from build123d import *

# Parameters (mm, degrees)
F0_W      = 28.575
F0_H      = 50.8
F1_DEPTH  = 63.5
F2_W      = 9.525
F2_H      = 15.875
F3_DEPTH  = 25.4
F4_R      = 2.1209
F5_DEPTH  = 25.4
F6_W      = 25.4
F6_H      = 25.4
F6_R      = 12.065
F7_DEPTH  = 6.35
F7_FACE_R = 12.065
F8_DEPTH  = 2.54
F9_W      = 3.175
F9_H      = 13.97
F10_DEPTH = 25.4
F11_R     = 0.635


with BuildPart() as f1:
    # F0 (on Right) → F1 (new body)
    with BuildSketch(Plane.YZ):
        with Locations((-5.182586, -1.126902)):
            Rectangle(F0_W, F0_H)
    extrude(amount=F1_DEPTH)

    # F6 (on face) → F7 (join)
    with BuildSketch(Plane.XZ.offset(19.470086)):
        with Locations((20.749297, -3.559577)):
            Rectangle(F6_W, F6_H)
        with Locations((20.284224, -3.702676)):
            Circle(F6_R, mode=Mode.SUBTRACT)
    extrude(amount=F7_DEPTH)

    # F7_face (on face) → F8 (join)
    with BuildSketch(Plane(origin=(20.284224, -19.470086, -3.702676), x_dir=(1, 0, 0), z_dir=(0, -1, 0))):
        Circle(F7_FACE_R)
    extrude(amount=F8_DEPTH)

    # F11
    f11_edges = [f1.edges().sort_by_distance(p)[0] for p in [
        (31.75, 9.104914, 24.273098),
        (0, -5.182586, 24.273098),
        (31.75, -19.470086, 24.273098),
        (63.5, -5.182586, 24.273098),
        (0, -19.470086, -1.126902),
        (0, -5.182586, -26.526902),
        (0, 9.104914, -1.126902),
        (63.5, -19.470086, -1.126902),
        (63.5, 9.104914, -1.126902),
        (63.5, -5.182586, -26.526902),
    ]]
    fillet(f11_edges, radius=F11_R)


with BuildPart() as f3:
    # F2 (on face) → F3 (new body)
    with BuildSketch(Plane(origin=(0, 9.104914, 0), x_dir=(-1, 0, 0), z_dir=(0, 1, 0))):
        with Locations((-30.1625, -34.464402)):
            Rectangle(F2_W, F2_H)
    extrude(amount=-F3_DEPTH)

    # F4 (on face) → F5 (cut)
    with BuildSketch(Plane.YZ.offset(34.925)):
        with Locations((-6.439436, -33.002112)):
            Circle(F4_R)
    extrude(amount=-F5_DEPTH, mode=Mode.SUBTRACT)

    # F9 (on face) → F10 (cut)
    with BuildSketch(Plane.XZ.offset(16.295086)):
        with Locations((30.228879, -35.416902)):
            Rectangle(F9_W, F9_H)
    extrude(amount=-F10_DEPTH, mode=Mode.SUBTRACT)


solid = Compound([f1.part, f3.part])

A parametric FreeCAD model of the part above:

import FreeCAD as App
import Part
import Sketcher
Q = App.Units.Quantity


def edges_at(feature, points):
    """Names of the edges that pass closest to the given points."""
    edges = feature.Shape.Edges
    near = lambda p: min(range(len(edges)), key=lambda i: edges[i].distToShape(Part.Vertex(*p))[0])
    return sorted({f"Edge{near(p) + 1}" for p in points})

doc = App.newDocument("Part")
body = doc.addObject("PartDesign::Body", "Body")

# Sketch on YZ plane
sketch1 = body.newObject("Sketcher::SketchObject", "Sketch")
sketch1.AttachmentSupport = (doc.getObject("YZ_Plane"), [""])
sketch1.MapMode = "FlatFace"
sketch1.addGeometry([
    Part.LineSegment(App.Vector(-19, 24, 0), App.Vector(-19, -27, 0)),
    Part.LineSegment(App.Vector(-19, -27, 0), App.Vector(9, -27, 0)),
    Part.LineSegment(App.Vector(9, -27, 0), App.Vector(9, 24, 0)),
    Part.LineSegment(App.Vector(9, 24, 0), App.Vector(-19, 24, 0)),
], False)
sketch1.addConstraint([
    Sketcher.Constraint("Coincident", 0, 2, 1, 1),
    Sketcher.Constraint("Coincident", 1, 2, 2, 1),
    Sketcher.Constraint("Coincident", 2, 2, 3, 1),
    Sketcher.Constraint("Coincident", 3, 2, 0, 1),
    Sketcher.Constraint("Vertical", 0),
    Sketcher.Constraint("Horizontal", 1),
    Sketcher.Constraint("Vertical", 2),
    Sketcher.Constraint("Horizontal", 3),
    Sketcher.Constraint("DistanceY", 0, 2, 0, 1, Q("2 in")),
    Sketcher.Constraint("DistanceX", 1, 1, 1, 2, Q("1.125 in")),
    Sketcher.Constraint("DistanceY", 0, 2, -1, 1, 26.526902),
    Sketcher.Constraint("DistanceX", 0, 2, -1, 1, 19.470086),
])
pad1 = body.newObject("PartDesign::Pad", "Pad")
pad1.Profile = sketch1
pad1.Length = Q("2.5 in")

# Sketch on XZ plane
sketch2 = body.newObject("Sketcher::SketchObject", "Sketch001")
sketch2.AttachmentSupport = (doc.getObject("XZ_Plane"), [""])
sketch2.MapMode = "FlatFace"
sketch2.AttachmentOffset = App.Placement(App.Vector(0, 0, 19.470086), App.Rotation())
sketch2.addGeometry([
    Part.LineSegment(App.Vector(8, 9, 0), App.Vector(8, -16, 0)),  # 0
    Part.LineSegment(App.Vector(8, -16, 0), App.Vector(33, -16, 0)),  # 1
    Part.LineSegment(App.Vector(33, -16, 0), App.Vector(33, 9, 0)),  # 2
    Part.LineSegment(App.Vector(33, 9, 0), App.Vector(8, 9, 0)),  # 3
    Part.Circle(App.Vector(20, -4, 0), App.Vector(0, 0, 1), 12),  # 4
], False)
sketch2.addConstraint([
    Sketcher.Constraint("Coincident", 0, 2, 1, 1),
    Sketcher.Constraint("Coincident", 1, 2, 2, 1),
    Sketcher.Constraint("Coincident", 2, 2, 3, 1),
    Sketcher.Constraint("Coincident", 3, 2, 0, 1),
    Sketcher.Constraint("Vertical", 0),
    Sketcher.Constraint("Horizontal", 1),
    Sketcher.Constraint("Vertical", 2),
    Sketcher.Constraint("Horizontal", 3),
    Sketcher.Constraint("Equal", 3, 0),
    Sketcher.Constraint("Diameter", 4, Q("0.95 in")),
    Sketcher.Constraint("DistanceX", 1, 1, 1, 2, Q("1 in")),
    Sketcher.Constraint("DistanceY", 0, 2, 4, 3, 12.556901),
    Sketcher.Constraint("DistanceX", -1, 1, 4, 3, 20.284224),
    Sketcher.Constraint("DistanceY", 4, 3, -1, 1, 3.702676),
    Sketcher.Constraint("DistanceX", -1, 1, 0, 2, 8.049297),
])
pad2 = body.newObject("PartDesign::Pad", "Pad001")
pad2.Profile = sketch2
pad2.Length = Q("0.25 in")

# Sketch on XZ plane
sketch3 = body.newObject("Sketcher::SketchObject", "Sketch002")
sketch3.AttachmentSupport = (doc.getObject("XZ_Plane"), [""])
sketch3.MapMode = "FlatFace"
sketch3.AttachmentOffset = App.Placement(App.Vector(0, 0, 19.470086), App.Rotation())
sketch3.addGeometry(Part.Circle(App.Vector(20, -4, 0), App.Vector(0, 0, 1), 12), False)
sketch3.addConstraint([
    Sketcher.Constraint("Diameter", 0, Q("0.95 in")),
    Sketcher.Constraint("DistanceX", -1, 1, 0, 3, 20.284224),
    Sketcher.Constraint("DistanceY", 0, 3, -1, 1, 3.702676),
])
pad3 = body.newObject("PartDesign::Pad", "Pad002")
pad3.Profile = sketch3
pad3.Length = Q("0.1 in")
doc.recompute()

fillet = body.newObject("PartDesign::Fillet", "Fillet")
fillet.Base = (pad3, edges_at(pad3, [
    (31.75, 9.105, 24.273),
    (0, -5.183, 24.273),
    (31.75, -19.47, 24.273),
    (63.5, -5.183, 24.273),
    (0, -19.47, -1.127),
    (0, -5.183, -26.527),
    (0, 9.105, -1.127),
    (63.5, -19.47, -1.127),
    (63.5, 9.105, -1.127),
    (63.5, -5.183, -26.527),
]))
fillet.Radius = Q("0.025 in")
body2 = doc.addObject("PartDesign::Body", "Body001")

# Sketch on XZ plane
sketch4 = body2.newObject("Sketcher::SketchObject", "Sketch003")
sketch4.AttachmentSupport = (doc.getObject("XZ_Plane001"), [""])
sketch4.MapMode = "FlatFace"
sketch4.AttachmentOffset = App.Placement(App.Vector(0, 0, -9.104914), App.Rotation())
sketch4.addGeometry([
    Part.LineSegment(App.Vector(35, -27, 0), App.Vector(35, -42, 0)),
    Part.LineSegment(App.Vector(35, -42, 0), App.Vector(25, -42, 0)),
    Part.LineSegment(App.Vector(25, -42, 0), App.Vector(25, -27, 0)),
    Part.LineSegment(App.Vector(25, -27, 0), App.Vector(35, -27, 0)),
], False)
sketch4.addConstraint([
    Sketcher.Constraint("Coincident", 0, 2, 1, 1),
    Sketcher.Constraint("Coincident", 1, 2, 2, 1),
    Sketcher.Constraint("Coincident", 2, 2, 3, 1),
    Sketcher.Constraint("Coincident", 3, 2, 0, 1),
    Sketcher.Constraint("Vertical", 0),
    Sketcher.Constraint("Horizontal", 1),
    Sketcher.Constraint("Vertical", 2),
    Sketcher.Constraint("Horizontal", 3),
    Sketcher.Constraint("DistanceX", -1, 1, 1, 2, Q("1 in")),
    Sketcher.Constraint("DistanceX", 1, 2, 1, 1, Q("0.375 in")),
    Sketcher.Constraint("DistanceY", 0, 2, 0, 1, Q("0.625 in")),
    Sketcher.Constraint("DistanceY", 2, 2, -1, 1, 26.526902),
])
pad4 = body2.newObject("PartDesign::Pad", "Pad003")
pad4.Profile = sketch4
pad4.Length = Q("1 in")

# Sketch on YZ plane
sketch5 = body2.newObject("Sketcher::SketchObject", "Sketch004")
sketch5.AttachmentSupport = (doc.getObject("YZ_Plane001"), [""])
sketch5.MapMode = "FlatFace"
sketch5.AttachmentOffset = App.Placement(App.Vector(0, 0, 1.375 * 25.4), App.Rotation())
sketch5.addGeometry(Part.Circle(App.Vector(-6.4, -33, 0), App.Vector(0, 0, 1), 2.1), False)
sketch5.addConstraint([
    Sketcher.Constraint("Diameter", 0, Q("0.167 in")),
    Sketcher.Constraint("DistanceY", 0, 3, -1, 1, 33.002112),
    Sketcher.Constraint("DistanceX", 0, 3, -1, 1, 6.439436),
])
pocket1 = body2.newObject("PartDesign::Pocket", "Pocket")
pocket1.Profile = sketch5
pocket1.Length = Q("1 in")

# Sketch on XZ plane
sketch6 = body2.newObject("Sketcher::SketchObject", "Sketch005")
sketch6.AttachmentSupport = (doc.getObject("XZ_Plane001"), [""])
sketch6.MapMode = "FlatFace"
sketch6.AttachmentOffset = App.Placement(App.Vector(0, 0, 16.295086), App.Rotation())
sketch6.addGeometry([
    Part.LineSegment(App.Vector(28.6, -28.4, 0), App.Vector(28.6, -42.4, 0)),
    Part.LineSegment(App.Vector(28.6, -42.4, 0), App.Vector(31.8, -42.4, 0)),
    Part.LineSegment(App.Vector(31.8, -42.4, 0), App.Vector(31.8, -28.4, 0)),
    Part.LineSegment(App.Vector(31.8, -28.4, 0), App.Vector(28.6, -28.4, 0)),
], False)
sketch6.addConstraint([
    Sketcher.Constraint("Coincident", 0, 2, 1, 1),
    Sketcher.Constraint("Coincident", 1, 2, 2, 1),
    Sketcher.Constraint("Coincident", 2, 2, 3, 1),
    Sketcher.Constraint("Coincident", 3, 2, 0, 1),
    Sketcher.Constraint("Vertical", 0),
    Sketcher.Constraint("Horizontal", 1),
    Sketcher.Constraint("Vertical", 2),
    Sketcher.Constraint("Horizontal", 3),
    Sketcher.Constraint("DistanceY", 0, 2, 0, 1, Q("0.55 in")),
    Sketcher.Constraint("DistanceX", 1, 1, 1, 2, Q("0.125 in")),
    Sketcher.Constraint("DistanceX", -1, 1, 0, 2, 28.641379),
    Sketcher.Constraint("DistanceY", 0, 2, -1, 1, 42.401902),
])
pocket2 = body2.newObject("PartDesign::Pocket", "Pocket001")
pocket2.Profile = sketch6
pocket2.Length = Q("1 in")

doc.recompute()
